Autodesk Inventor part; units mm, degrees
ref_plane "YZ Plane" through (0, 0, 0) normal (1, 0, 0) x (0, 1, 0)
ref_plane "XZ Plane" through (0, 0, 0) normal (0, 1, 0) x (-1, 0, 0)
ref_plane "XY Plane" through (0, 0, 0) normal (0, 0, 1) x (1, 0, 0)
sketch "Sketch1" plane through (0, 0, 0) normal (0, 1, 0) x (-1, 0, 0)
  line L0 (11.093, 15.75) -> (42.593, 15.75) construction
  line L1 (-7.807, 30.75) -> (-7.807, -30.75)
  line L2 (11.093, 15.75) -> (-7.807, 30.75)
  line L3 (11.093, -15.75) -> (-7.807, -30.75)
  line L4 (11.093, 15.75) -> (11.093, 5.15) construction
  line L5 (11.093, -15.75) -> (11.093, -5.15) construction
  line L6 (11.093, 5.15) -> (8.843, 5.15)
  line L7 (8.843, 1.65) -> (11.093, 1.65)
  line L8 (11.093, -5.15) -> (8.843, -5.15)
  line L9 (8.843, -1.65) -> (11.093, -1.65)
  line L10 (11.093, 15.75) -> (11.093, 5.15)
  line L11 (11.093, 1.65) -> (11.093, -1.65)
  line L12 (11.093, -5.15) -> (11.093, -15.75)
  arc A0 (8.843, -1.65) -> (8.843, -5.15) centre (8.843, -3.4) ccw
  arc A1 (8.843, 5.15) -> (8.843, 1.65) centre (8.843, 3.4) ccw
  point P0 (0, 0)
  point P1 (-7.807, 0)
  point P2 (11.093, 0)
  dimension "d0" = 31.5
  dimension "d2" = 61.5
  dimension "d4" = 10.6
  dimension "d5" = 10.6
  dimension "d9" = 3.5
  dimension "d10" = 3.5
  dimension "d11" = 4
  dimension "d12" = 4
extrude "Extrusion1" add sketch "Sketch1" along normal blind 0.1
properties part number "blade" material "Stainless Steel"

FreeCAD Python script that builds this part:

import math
import FreeCAD as App
import Part
import Sketcher

V = App.Vector

doc = App.newDocument("Part")
body = doc.addObject("PartDesign::Body", "Body")

# Sketch on XZ plane
sketch1 = body.newObject("Sketcher::SketchObject", "Sketch")
sketch1.AttachmentSupport = (doc.getObject("XZ_Plane"), [""])
sketch1.MapMode = "FlatFace"
sketch1.addGeometry(Part.LineSegment(V(-11.1, 15.8, 0), V(7.8, 30.8, 0)), False)
sketch1.addGeometry(Part.LineSegment(V(7.8, 30.8, 0), V(7.8, -30.8, 0)), False)
sketch1.addGeometry(Part.LineSegment(V(7.8, -30.8, 0), V(-11.1, -15.8, 0)), False)
sketch1.addGeometry(Part.LineSegment(V(-11.1, -15.8, 0), V(-11.1, -5.2, 0)), False)
sketch1.addGeometry(Part.LineSegment(V(-11.1, -5.2, 0), V(-8.8, -5.2, 0)), False)
sketch1.addGeometry(Part.ArcOfCircle(Part.Circle(V(-8.8, -3.4, 0), V(0, 0, 1), 1.8), math.radians(-90), math.radians(90)), False)
sketch1.addGeometry(Part.LineSegment(V(-8.8, -1.6, 0), V(-11.1, -1.6, 0)), False)
sketch1.addGeometry(Part.LineSegment(V(-11.1, -1.6, 0), V(-11.1, 1.6, 0)), False)
sketch1.addGeometry(Part.LineSegment(V(-11.1, 1.6, 0), V(-8.8, 1.6, 0)), False)
sketch1.addGeometry(Part.ArcOfCircle(Part.Circle(V(-8.8, 3.4, 0), V(0, 0, 1), 1.8), math.radians(-90), math.radians(90)), False)
sketch1.addGeometry(Part.LineSegment(V(-8.8, 5.2, 0), V(-11.1, 5.2, 0)), False)
sketch1.addGeometry(Part.LineSegment(V(-11.1, 5.2, 0), V(-11.1, 15.8, 0)), False)
sketch1.addConstraint(Sketcher.Constraint("Coincident", 0, 2, 1, 1))
sketch1.addConstraint(Sketcher.Constraint("Coincident", 1, 2, 2, 1))
sketch1.addConstraint(Sketcher.Constraint("Coincident", 2, 2, 3, 1))
sketch1.addConstraint(Sketcher.Constraint("Coincident", 3, 2, 4, 1))
sketch1.addConstraint(Sketcher.Constraint("Tangent", 4, 2, 5, 1))
sketch1.addConstraint(Sketcher.Constraint("Tangent", 5, 2, 6, 1))
sketch1.addConstraint(Sketcher.Constraint("Coincident", 6, 2, 7, 1))
sketch1.addConstraint(Sketcher.Constraint("Coincident", 7, 2, 8, 1))
sketch1.addConstraint(Sketcher.Constraint("Tangent", 8, 2, 9, 1))
sketch1.addConstraint(Sketcher.Constraint("Tangent", 9, 2, 10, 1))
sketch1.addConstraint(Sketcher.Constraint("Coincident", 10, 2, 11, 1))
sketch1.addConstraint(Sketcher.Constraint("Coincident", 11, 2, 0, 1))
sketch1.addConstraint(Sketcher.Constraint("Vertical", 1))
sketch1.addConstraint(Sketcher.Constraint("Vertical", 3))
sketch1.addConstraint(Sketcher.Constraint("Horizontal", 4))
sketch1.addConstraint(Sketcher.Constraint("Horizontal", 6))
sketch1.addConstraint(Sketcher.Constraint("Vertical", 7))
sketch1.addConstraint(Sketcher.Constraint("Horizontal", 8))
sketch1.addConstraint(Sketcher.Constraint("Horizontal", 10))
sketch1.addConstraint(Sketcher.Constraint("Vertical", 11))
sketch1.addConstraint(Sketcher.Constraint("Equal", 5, 9))
sketch1.addConstraint(Sketcher.Constraint("Symmetric", 5, 3, 9, 3, -1))
sketch1.addConstraint(Sketcher.Constraint("Symmetric", 2, 2, 11, 2, -1))
sketch1.addConstraint(Sketcher.Constraint("Vertical", 3, 2, 6, 2))
sketch1.addConstraint(Sketcher.Constraint("Equal", 0, 2))
sketch1.addConstraint(Sketcher.Constraint("Radius", 5, 1.75))
sketch1.addConstraint(Sketcher.Constraint("DistanceY", 1, 2, 1, 1, 61.5))
sketch1.addConstraint(Sketcher.Constraint("DistanceY", 3, 1, 3, 2, 10.6))
sketch1.addConstraint(Sketcher.Constraint("DistanceY", 7, 1, 7, 2, 3.3))
sketch1.addConstraint(Sketcher.Constraint("DistanceX", 4, 1, 4, 2, 2.25))
sketch1.addConstraint(Sketcher.Constraint("DistanceX", 2, 2, 1, 2, 18.9))
sketch1.addConstraint(Sketcher.Constraint("DistanceX", 5, 3, -1, 1, 8.843))
pad1 = body.newObject("PartDesign::Pad", "Pad")
pad1.Profile = sketch1
pad1.Length = 0.1
pad1.Reversed = True

doc.recompute()
